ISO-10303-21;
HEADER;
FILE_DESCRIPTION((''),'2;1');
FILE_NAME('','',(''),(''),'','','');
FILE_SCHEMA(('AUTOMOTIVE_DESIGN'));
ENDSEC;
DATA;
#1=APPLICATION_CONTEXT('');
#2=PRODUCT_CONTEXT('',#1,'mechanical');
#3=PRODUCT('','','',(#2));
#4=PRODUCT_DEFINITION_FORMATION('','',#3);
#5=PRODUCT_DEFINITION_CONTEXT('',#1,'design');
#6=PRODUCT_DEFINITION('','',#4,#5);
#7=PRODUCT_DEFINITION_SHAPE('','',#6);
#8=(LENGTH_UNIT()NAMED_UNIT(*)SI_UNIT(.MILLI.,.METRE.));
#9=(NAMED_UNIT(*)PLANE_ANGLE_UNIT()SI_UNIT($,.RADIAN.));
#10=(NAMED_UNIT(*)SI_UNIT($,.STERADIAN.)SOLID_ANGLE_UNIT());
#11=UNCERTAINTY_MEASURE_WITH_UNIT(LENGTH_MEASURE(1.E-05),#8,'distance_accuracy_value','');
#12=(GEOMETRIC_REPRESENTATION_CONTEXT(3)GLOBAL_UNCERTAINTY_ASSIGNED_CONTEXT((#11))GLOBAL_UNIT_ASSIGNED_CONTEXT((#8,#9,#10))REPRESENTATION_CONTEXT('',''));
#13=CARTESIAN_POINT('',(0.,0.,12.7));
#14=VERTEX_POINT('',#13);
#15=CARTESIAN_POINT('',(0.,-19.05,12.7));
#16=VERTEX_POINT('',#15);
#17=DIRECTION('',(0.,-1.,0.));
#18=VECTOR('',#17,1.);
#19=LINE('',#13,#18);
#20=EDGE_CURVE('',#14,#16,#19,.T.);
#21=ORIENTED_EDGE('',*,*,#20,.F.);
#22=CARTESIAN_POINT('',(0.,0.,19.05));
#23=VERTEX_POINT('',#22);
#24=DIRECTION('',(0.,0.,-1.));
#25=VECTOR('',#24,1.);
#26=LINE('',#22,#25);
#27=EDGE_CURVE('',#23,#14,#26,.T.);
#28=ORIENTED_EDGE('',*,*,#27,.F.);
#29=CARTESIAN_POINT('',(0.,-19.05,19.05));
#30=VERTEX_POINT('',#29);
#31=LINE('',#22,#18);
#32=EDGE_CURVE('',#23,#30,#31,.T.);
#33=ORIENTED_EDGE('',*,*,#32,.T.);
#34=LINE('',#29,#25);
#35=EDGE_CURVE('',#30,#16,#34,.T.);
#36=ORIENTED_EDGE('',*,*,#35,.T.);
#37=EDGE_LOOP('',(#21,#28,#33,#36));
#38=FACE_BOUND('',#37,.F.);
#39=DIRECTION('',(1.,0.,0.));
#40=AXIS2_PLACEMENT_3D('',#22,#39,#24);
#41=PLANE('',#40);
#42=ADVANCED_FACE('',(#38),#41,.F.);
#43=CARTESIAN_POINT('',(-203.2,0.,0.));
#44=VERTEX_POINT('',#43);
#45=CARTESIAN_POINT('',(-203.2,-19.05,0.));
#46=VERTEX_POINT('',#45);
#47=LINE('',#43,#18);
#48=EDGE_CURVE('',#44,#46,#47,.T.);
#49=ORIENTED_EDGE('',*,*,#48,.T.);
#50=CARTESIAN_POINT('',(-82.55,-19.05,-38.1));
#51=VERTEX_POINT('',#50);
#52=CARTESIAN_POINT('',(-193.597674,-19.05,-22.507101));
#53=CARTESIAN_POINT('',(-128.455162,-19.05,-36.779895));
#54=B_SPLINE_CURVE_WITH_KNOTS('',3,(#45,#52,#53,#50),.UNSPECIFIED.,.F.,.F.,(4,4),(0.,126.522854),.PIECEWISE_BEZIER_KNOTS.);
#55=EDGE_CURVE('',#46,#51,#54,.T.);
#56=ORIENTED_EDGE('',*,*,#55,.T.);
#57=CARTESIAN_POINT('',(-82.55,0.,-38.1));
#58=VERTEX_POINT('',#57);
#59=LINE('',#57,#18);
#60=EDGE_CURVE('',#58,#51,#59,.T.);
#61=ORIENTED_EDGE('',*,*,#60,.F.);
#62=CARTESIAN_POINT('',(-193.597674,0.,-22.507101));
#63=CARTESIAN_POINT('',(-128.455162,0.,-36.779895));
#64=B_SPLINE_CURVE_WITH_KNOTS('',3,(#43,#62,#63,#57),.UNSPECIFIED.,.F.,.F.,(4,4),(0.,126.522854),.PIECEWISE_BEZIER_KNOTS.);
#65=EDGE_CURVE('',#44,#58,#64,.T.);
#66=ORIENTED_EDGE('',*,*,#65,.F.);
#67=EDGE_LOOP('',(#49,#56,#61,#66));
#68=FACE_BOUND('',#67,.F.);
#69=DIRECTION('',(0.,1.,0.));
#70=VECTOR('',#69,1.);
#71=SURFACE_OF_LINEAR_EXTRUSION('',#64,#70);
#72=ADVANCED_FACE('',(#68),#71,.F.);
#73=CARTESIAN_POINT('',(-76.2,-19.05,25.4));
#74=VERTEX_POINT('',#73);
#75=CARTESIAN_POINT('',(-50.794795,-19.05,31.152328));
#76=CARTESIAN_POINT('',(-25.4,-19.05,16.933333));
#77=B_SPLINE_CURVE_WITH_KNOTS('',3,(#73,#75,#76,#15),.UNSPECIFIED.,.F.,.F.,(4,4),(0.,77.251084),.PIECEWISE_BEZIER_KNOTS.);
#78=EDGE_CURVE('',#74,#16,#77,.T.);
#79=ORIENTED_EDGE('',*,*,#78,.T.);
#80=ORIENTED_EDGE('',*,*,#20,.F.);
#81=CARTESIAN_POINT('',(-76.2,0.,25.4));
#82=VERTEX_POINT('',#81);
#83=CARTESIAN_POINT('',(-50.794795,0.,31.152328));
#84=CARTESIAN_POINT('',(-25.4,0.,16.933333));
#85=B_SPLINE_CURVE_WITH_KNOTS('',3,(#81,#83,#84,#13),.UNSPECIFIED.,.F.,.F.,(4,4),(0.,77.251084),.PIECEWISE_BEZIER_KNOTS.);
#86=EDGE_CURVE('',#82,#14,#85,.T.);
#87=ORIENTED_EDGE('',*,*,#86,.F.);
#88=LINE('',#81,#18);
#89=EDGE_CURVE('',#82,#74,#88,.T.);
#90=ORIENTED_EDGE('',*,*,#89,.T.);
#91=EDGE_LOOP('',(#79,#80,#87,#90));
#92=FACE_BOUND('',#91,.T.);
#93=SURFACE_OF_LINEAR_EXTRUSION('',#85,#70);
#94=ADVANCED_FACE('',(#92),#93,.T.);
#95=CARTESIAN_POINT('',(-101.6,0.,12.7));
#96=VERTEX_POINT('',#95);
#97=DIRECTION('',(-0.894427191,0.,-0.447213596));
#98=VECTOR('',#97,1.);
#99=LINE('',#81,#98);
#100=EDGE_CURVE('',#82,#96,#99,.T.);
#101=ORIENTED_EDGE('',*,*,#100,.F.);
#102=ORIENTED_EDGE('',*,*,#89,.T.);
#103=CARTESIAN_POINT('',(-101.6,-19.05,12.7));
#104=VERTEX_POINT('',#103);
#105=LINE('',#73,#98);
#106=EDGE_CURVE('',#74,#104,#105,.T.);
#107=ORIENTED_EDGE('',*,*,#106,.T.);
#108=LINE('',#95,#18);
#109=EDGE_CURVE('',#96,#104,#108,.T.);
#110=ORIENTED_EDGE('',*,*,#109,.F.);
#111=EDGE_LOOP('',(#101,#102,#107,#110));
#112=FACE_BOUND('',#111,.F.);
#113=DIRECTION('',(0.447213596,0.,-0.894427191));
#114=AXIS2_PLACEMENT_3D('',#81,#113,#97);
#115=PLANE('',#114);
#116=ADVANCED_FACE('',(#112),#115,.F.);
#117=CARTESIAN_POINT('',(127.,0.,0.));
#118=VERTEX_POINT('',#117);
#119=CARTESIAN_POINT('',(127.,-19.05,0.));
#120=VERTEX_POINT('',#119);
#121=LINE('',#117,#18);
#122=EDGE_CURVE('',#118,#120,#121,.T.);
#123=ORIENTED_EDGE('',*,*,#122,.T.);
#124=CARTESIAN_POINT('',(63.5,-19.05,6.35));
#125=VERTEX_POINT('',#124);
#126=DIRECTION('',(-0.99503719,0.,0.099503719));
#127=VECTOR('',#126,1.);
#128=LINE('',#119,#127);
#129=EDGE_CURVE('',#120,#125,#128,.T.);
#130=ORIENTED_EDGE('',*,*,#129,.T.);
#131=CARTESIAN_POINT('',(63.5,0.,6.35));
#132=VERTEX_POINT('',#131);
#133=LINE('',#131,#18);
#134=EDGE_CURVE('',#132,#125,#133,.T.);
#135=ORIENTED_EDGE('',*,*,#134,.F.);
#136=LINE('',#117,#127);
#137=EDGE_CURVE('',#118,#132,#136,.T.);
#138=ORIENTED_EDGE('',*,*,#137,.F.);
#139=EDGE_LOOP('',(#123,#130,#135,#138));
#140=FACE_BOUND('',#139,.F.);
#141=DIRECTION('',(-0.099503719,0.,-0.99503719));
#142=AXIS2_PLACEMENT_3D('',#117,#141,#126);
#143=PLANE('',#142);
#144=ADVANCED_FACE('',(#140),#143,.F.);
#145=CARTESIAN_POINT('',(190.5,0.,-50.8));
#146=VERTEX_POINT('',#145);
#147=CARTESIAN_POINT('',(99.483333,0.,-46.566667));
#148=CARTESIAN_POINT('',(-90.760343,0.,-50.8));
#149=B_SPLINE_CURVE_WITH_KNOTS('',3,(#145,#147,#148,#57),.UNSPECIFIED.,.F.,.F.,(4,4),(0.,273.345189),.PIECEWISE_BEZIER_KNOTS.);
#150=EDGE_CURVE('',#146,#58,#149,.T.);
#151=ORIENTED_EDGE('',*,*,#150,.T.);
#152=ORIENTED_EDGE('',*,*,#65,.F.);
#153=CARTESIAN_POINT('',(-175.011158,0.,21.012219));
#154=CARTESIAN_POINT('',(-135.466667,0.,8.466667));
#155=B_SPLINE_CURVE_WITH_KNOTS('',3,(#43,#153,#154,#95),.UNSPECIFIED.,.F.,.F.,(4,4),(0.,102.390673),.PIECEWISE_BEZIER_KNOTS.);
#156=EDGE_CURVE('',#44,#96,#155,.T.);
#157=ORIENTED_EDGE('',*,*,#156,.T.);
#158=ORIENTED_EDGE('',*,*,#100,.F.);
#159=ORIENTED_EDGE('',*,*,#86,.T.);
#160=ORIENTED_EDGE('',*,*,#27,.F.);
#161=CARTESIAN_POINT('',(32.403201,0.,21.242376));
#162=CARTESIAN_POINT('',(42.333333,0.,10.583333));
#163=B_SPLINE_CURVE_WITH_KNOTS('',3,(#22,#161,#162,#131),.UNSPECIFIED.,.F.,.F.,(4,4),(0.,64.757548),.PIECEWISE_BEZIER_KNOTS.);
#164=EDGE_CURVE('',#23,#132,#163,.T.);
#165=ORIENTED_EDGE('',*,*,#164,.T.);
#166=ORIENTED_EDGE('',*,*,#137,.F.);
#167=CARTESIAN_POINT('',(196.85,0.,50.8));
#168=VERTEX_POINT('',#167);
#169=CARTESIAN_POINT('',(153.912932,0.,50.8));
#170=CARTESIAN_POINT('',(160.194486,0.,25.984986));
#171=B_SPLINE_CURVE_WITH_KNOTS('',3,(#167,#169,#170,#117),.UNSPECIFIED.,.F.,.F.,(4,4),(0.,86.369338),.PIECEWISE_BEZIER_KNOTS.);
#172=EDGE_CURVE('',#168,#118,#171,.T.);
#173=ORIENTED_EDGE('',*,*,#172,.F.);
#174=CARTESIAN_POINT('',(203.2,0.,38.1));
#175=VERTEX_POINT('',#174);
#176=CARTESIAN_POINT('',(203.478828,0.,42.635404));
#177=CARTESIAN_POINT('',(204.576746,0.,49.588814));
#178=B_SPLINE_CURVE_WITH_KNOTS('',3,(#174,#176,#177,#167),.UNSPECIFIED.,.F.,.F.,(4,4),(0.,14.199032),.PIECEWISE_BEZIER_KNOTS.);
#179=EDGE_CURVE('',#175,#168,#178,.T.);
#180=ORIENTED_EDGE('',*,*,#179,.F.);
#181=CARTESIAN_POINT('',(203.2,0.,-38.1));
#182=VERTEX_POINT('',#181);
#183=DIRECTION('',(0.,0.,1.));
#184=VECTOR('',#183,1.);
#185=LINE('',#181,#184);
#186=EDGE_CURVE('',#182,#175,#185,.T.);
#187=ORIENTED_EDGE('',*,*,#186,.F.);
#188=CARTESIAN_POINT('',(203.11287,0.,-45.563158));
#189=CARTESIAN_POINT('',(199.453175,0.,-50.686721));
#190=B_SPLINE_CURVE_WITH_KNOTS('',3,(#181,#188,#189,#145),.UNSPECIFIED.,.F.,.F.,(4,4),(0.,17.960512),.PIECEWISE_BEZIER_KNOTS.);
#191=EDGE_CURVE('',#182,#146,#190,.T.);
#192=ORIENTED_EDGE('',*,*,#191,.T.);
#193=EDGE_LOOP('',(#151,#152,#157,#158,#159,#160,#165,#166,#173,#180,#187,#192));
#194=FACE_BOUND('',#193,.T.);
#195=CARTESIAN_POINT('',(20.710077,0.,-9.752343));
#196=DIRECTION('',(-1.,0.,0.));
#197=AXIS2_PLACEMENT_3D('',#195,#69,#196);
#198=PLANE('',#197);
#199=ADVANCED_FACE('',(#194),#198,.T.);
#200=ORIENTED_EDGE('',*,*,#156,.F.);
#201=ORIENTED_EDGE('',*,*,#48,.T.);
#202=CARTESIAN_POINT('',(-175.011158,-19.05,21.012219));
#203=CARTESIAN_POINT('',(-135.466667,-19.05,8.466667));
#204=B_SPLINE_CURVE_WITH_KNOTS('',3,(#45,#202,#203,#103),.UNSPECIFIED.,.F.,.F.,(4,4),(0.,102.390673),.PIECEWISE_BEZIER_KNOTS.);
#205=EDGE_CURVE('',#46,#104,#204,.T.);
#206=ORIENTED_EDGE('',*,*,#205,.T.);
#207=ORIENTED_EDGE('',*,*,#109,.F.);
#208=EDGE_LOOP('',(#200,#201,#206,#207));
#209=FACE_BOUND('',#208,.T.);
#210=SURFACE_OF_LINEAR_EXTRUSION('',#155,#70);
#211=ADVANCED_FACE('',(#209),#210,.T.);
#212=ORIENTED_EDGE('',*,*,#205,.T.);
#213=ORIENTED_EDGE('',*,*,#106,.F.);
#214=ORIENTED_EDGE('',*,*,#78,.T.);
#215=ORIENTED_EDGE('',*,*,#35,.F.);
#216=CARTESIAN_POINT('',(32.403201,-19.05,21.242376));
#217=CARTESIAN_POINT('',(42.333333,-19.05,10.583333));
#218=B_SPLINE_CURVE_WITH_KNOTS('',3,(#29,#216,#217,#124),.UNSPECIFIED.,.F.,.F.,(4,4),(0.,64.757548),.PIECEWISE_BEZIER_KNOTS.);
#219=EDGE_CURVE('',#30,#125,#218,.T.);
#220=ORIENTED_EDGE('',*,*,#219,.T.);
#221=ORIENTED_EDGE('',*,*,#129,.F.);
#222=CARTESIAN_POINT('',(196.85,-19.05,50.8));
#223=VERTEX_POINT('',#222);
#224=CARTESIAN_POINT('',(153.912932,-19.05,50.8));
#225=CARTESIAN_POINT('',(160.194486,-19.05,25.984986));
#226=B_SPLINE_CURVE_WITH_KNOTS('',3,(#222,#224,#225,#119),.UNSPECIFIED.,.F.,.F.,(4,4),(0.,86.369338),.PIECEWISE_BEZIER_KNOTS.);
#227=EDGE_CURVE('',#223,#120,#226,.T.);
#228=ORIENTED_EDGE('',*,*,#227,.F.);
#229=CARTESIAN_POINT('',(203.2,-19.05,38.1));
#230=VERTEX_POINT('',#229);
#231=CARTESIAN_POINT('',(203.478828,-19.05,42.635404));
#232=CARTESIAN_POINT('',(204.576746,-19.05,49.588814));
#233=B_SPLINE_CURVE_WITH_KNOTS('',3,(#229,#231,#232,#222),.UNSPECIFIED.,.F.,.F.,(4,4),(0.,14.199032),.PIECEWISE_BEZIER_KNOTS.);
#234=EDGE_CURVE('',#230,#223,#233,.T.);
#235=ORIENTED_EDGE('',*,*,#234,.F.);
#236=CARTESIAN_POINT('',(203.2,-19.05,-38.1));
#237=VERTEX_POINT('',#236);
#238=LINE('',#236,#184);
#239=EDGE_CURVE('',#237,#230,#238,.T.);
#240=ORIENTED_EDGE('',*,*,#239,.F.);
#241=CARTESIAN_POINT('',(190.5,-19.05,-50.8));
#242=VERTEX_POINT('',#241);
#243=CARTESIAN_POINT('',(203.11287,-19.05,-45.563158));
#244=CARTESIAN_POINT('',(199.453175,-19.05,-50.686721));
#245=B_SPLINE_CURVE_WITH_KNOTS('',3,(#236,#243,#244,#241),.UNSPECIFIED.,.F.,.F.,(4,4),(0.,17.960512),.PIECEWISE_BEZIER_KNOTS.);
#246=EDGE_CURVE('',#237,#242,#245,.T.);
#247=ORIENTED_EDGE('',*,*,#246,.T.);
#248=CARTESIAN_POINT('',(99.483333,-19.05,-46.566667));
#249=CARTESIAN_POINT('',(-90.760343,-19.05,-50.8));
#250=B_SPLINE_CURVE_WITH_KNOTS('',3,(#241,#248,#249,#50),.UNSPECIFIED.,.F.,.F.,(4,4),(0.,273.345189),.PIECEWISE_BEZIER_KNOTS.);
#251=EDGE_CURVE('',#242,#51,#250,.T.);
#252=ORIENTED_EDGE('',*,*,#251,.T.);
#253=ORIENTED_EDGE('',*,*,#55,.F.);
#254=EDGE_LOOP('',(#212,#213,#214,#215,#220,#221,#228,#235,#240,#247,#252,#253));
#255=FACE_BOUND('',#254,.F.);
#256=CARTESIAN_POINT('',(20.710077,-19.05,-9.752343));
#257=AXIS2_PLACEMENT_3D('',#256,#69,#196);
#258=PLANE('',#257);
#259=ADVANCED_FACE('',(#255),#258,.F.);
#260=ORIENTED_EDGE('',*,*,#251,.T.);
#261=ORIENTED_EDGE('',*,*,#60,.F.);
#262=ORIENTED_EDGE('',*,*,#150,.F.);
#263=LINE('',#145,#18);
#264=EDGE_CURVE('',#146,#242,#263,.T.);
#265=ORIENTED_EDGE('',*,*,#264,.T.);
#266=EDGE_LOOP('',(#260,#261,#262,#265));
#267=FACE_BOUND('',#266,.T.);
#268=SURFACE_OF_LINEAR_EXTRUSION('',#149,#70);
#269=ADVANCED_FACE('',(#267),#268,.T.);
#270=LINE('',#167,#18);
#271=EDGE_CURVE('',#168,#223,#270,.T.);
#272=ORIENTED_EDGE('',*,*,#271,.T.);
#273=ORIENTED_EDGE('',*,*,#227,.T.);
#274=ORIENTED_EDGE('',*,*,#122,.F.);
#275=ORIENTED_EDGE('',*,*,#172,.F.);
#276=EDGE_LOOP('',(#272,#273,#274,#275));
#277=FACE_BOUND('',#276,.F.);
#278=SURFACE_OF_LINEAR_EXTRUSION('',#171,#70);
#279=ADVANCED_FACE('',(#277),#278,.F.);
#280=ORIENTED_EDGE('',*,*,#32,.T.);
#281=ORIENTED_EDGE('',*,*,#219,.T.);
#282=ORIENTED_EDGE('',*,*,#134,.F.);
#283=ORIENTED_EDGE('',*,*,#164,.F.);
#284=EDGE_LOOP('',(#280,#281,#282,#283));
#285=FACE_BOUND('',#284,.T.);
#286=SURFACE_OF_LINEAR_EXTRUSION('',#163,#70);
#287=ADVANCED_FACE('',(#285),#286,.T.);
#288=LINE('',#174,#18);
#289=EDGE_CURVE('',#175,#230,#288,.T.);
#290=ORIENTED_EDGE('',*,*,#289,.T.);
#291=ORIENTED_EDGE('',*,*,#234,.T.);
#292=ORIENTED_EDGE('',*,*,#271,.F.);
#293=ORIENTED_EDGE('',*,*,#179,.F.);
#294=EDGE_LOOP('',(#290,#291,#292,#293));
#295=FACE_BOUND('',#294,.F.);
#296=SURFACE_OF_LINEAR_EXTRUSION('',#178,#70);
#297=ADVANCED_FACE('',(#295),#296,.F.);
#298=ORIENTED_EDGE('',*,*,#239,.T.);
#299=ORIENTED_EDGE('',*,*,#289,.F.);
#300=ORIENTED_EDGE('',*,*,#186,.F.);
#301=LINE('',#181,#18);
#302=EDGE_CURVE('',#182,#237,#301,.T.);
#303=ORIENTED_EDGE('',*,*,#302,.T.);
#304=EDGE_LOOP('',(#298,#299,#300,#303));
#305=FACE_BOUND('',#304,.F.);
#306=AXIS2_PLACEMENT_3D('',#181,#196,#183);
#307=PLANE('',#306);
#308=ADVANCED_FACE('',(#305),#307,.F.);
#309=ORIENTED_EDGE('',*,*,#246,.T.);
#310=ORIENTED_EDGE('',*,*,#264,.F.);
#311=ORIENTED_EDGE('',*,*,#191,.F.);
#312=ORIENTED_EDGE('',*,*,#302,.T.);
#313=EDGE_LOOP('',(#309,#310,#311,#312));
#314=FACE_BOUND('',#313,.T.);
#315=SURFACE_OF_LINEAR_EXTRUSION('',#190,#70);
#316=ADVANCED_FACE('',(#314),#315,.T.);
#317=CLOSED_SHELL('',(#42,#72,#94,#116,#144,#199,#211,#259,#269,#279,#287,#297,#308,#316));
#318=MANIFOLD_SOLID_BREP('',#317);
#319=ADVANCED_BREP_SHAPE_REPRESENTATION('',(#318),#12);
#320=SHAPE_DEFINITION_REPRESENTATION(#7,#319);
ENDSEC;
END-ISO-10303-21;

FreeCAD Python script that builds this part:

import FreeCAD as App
import Part
import Sketcher
from FreeCAD import Vector
Q = App.Units.Quantity

doc = App.newDocument("Part")
body = doc.addObject("PartDesign::Body", "Body")

sketch1 = body.newObject("Sketcher::SketchObject", "Sketch")
sketch1.AttachmentSupport = (doc.getObject("XZ_Plane"), [""])
sketch1.MapMode = "FlatFace"
sketch1.addGeometry(Part.BSplineCurve([Vector(-203.2, 0, 0), Vector(-175.011158, 21.012219, 0), Vector(-135.466667, 8.466667, 0), Vector(-101.6, 12.7, 0)], [4, 4], [0, 102.390673], False, 3, [1, 1, 1, 1], False), False)
sketch1.addGeometry(Part.BSplineCurve([Vector(-203.2, 0, 0), Vector(-193.597674, -22.507101, 0), Vector(-128.455162, -36.779895, 0), Vector(-82.55, -38.1, 0)], [4, 4], [0, 126.522854], False, 3, [1, 1, 1, 1], False), False)
sketch1.addGeometry(Part.BSplineCurve([Vector(190.5, -50.8, 0), Vector(99.483333, -46.566667, 0), Vector(-90.760343, -50.8, 0), Vector(-82.55, -38.1, 0)], [4, 4], [0, 273.345189], False, 3, [1, 1, 1, 1], False), False)
sketch1.addGeometry(Part.BSplineCurve([Vector(203.2, -38.1, 0), Vector(203.11287, -45.563158, 0), Vector(199.453175, -50.686721, 0), Vector(190.5, -50.8, 0)], [4, 4], [0, 17.960512], False, 3, [1, 1, 1, 1], False), False)
sketch1.addGeometry(Part.LineSegment(Vector(203.2, -38.1, 0), Vector(203.2, 38.1, 0)), False)
sketch1.addGeometry(Part.BSplineCurve([Vector(203.2, 38.1, 0), Vector(203.478828, 42.635404, 0), Vector(204.576746, 49.588814, 0), Vector(196.85, 50.8, 0)], [4, 4], [0, 14.199032], False, 3, [1, 1, 1, 1], False), False)
sketch1.addGeometry(Part.BSplineCurve([Vector(196.85, 50.8, 0), Vector(153.912932, 50.8, 0), Vector(160.194486, 25.984986, 0), Vector(127, 0, 0)], [4, 4], [0, 86.369338], False, 3, [1, 1, 1, 1], False), False)
sketch1.addGeometry(Part.LineSegment(Vector(127, 0, 0), Vector(63.5, 6.35, 0)), False)
sketch1.addGeometry(Part.BSplineCurve([Vector(0, 19.05, 0), Vector(32.403201, 21.242376, 0), Vector(42.333333, 10.583333, 0), Vector(63.5, 6.35, 0)], [4, 4], [0, 64.757548], False, 3, [1, 1, 1, 1], False), False)
sketch1.addGeometry(Part.LineSegment(Vector(0, 19.05, 0), Vector(0, 12.7, 0)), False)
sketch1.addGeometry(Part.BSplineCurve([Vector(-76.2, 25.4, 0), Vector(-50.794795, 31.152328, 0), Vector(-25.4, 16.933333, 0), Vector(0, 12.7, 0)], [4, 4], [0, 77.251084], False, 3, [1, 1, 1, 1], False), False)
sketch1.addGeometry(Part.LineSegment(Vector(-76.2, 25.4, 0), Vector(-101.6, 12.7, 0)), False)
sketch1.addConstraint(Sketcher.Constraint("Block", 0))
sketch1.addConstraint(Sketcher.Constraint("Block", 1))
sketch1.addConstraint(Sketcher.Constraint("Block", 2))
sketch1.addConstraint(Sketcher.Constraint("Block", 3))
sketch1.addConstraint(Sketcher.Constraint("Block", 5))
sketch1.addConstraint(Sketcher.Constraint("Block", 6))
sketch1.addConstraint(Sketcher.Constraint("Block", 8))
sketch1.addConstraint(Sketcher.Constraint("Block", 10))
sketch1.addConstraint(Sketcher.Constraint("Coincident", 3, 1, 4, 1))
sketch1.addConstraint(Sketcher.Constraint("Coincident", 4, 2, 5, 1))
sketch1.addConstraint(Sketcher.Constraint("Coincident", 6, 2, 7, 1))
sketch1.addConstraint(Sketcher.Constraint("Coincident", 7, 2, 8, 2))
sketch1.addConstraint(Sketcher.Constraint("Coincident", 8, 1, 9, 1))
sketch1.addConstraint(Sketcher.Constraint("Coincident", 9, 2, 10, 2))
sketch1.addConstraint(Sketcher.Constraint("Coincident", 10, 1, 11, 1))
sketch1.addConstraint(Sketcher.Constraint("Coincident", 11, 2, 0, 2))
pad1 = body.newObject("PartDesign::Pad", "Pad")
pad1.Profile = sketch1
pad1.Length = Q("0.75 in")

doc.recompute()
